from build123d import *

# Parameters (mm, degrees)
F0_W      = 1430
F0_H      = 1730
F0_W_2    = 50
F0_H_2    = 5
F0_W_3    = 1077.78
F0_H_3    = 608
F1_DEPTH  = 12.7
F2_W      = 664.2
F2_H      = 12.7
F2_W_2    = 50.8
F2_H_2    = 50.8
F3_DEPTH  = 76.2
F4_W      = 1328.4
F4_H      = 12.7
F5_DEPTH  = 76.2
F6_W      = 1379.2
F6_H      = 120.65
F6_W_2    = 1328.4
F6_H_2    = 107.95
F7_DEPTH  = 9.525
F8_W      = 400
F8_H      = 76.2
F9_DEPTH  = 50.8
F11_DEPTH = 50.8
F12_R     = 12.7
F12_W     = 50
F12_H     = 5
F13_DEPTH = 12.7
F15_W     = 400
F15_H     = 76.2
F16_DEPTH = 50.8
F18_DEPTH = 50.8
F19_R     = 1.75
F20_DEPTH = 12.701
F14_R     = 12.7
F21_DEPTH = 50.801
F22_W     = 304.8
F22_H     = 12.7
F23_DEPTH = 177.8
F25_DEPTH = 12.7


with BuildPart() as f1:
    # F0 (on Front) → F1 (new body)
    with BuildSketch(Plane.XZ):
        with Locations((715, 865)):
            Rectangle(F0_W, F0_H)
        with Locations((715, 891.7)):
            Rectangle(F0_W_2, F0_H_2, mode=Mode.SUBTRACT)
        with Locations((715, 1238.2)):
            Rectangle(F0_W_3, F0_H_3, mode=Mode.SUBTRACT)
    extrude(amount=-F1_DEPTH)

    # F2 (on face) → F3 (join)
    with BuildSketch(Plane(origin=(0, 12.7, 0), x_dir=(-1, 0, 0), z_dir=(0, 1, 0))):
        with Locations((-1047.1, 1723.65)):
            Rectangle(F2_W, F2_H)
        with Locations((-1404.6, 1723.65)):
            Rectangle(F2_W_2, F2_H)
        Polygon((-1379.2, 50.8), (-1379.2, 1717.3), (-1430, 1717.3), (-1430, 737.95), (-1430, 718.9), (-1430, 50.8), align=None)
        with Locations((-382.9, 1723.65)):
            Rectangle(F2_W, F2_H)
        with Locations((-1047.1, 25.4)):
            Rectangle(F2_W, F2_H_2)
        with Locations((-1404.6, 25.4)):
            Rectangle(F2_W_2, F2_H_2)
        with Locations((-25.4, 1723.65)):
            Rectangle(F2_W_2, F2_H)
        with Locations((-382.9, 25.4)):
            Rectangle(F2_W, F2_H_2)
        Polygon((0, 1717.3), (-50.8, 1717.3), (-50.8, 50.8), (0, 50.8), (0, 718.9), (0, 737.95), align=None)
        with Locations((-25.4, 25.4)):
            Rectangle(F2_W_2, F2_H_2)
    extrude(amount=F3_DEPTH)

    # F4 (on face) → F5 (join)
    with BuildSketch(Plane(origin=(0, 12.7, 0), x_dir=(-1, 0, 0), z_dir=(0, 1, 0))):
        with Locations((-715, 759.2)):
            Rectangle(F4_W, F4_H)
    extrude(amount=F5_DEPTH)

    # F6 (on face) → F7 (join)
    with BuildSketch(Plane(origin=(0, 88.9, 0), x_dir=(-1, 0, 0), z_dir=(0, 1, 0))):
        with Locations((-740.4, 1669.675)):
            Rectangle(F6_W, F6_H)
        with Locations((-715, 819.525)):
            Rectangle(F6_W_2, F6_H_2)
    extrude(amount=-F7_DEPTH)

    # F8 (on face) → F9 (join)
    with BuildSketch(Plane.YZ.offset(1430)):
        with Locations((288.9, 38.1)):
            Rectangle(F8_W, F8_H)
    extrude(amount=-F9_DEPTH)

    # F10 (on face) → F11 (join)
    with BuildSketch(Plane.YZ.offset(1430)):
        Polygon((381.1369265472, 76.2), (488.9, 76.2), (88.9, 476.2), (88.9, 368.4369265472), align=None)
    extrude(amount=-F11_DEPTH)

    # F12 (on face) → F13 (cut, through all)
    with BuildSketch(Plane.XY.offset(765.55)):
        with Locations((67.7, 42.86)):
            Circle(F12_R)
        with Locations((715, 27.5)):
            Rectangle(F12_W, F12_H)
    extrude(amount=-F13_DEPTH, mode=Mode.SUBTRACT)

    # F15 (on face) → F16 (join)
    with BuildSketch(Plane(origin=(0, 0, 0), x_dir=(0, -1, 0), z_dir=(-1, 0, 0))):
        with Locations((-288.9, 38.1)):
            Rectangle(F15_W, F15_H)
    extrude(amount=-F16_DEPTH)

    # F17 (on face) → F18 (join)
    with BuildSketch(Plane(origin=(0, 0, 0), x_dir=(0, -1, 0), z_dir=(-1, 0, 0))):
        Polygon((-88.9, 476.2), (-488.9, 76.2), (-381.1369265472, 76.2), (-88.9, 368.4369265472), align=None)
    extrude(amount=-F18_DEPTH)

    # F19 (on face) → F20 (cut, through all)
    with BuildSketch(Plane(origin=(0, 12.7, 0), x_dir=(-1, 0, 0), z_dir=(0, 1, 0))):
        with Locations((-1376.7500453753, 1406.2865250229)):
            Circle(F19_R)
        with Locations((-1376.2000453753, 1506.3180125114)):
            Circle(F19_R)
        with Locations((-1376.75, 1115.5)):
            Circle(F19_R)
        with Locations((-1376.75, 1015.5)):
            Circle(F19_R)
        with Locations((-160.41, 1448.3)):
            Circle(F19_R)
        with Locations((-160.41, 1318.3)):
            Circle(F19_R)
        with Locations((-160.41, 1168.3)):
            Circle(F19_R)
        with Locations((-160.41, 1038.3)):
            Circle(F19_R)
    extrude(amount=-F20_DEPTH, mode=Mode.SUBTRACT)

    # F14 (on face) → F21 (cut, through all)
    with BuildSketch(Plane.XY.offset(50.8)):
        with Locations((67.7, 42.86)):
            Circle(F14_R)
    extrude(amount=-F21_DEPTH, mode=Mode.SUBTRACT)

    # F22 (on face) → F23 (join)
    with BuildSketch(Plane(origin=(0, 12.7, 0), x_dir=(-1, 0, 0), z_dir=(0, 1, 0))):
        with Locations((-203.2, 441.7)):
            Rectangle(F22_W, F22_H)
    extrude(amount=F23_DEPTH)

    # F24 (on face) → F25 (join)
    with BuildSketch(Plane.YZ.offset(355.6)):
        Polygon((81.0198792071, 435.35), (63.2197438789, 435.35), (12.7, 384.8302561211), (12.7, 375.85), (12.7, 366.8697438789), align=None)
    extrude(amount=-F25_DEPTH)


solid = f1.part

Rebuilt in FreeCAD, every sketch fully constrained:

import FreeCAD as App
import Part
import Sketcher
from FreeCAD import Vector
Q = App.Units.Quantity


def add_polygon(sketch, points):
    """Adds a closed chain of lines whose ends are joined by coincident constraints."""
    first, n = sketch.GeometryCount, len(points)
    for a, b in zip(points, points[1:] + points[:1]):
        sketch.addGeometry(Part.LineSegment(App.Vector(*a, 0), App.Vector(*b, 0)), False)
    for i in range(n):
        sketch.addConstraint(Sketcher.Constraint("Coincident", first + i, 2, first + (i + 1) % n, 1))

doc = App.newDocument("Part")
body = doc.addObject("PartDesign::Body", "Body")

# Sketch on XZ plane
sketch1 = doc.addObject("Sketcher::SketchObject", "Sketch")
body.addObject(sketch1)
sketch1.AttachmentSupport = (doc.XZ_Plane, [""])
sketch1.MapMode = "FlatFace"
add_polygon(sketch1, [(0, 1730), (0, 0), (1430, 0), (1430, 1730)])  # lines 0-3
add_polygon(sketch1, [(740, 889), (690, 889), (690, 894), (740, 894)])  # lines 4-7
add_polygon(sketch1, [(1254, 934), (176, 934), (176, 1542), (1254, 1542)])  # lines 8-11
sketch1.addConstraint(Sketcher.Constraint("Vertical", 0))
sketch1.addConstraint(Sketcher.Constraint("Horizontal", 1))
sketch1.addConstraint(Sketcher.Constraint("Vertical", 2))
sketch1.addConstraint(Sketcher.Constraint("Horizontal", 3))
sketch1.addConstraint(Sketcher.Constraint("Horizontal", 4))
sketch1.addConstraint(Sketcher.Constraint("Vertical", 5))
sketch1.addConstraint(Sketcher.Constraint("Horizontal", 6))
sketch1.addConstraint(Sketcher.Constraint("Vertical", 7))
sketch1.addConstraint(Sketcher.Constraint("Horizontal", 8))
sketch1.addConstraint(Sketcher.Constraint("Vertical", 9))
sketch1.addConstraint(Sketcher.Constraint("Horizontal", 10))
sketch1.addConstraint(Sketcher.Constraint("Vertical", 11))
sketch1.addConstraint(Sketcher.Constraint("Coincident", 0, 2, -1, 1))
sketch1.addConstraint(Sketcher.Constraint("DistanceX", 1, 1, 1, 2, Q("1430 mm")))
sketch1.addConstraint(Sketcher.Constraint("DistanceX", 4, 2, 4, 1, Q("50 mm")))
sketch1.addConstraint(Sketcher.Constraint("DistanceY", 0, 2, 0, 1, Q("1730 mm")))
sketch1.addConstraint(Sketcher.Constraint("DistanceY", 5, 1, 5, 2, Q("5 mm")))
sketch1.addConstraint(Sketcher.Constraint("DistanceY", 9, 1, 9, 2, Q("608 mm")))
sketch1.addConstraint(Sketcher.Constraint("DistanceX", -1, 1, 4, 2, Q("690 mm")))
sketch1.addConstraint(Sketcher.Constraint("DistanceY", 5, 2, 8, 2, Q("40 mm")))
sketch1.addConstraint(Sketcher.Constraint("DistanceX", 8, 2, 8, 1, Q("1077.78 mm")))
sketch1.addConstraint(Sketcher.Constraint("DistanceY", -1, 1, 4, 2, Q("889.2 mm")))
sketch1.addConstraint(Sketcher.Constraint("DistanceX", -1, 1, 8, 2, Q("176.11 mm")))
pad1 = doc.addObject("PartDesign::Pad", "Pad")
body.addObject(pad1)
pad1.Profile = sketch1
pad1.Length = 12.7
pad1.Reversed = True

# Sketch on XZ plane
sketch2 = doc.addObject("Sketcher::SketchObject", "Sketch001")
body.addObject(sketch2)
sketch2.AttachmentSupport = (doc.XZ_Plane, [""])
sketch2.MapMode = "FlatFace"
sketch2.AttachmentOffset = App.Placement(Vector(0, 0, -12.7), App.Rotation())
add_polygon(sketch2, [(1430, 0), (0, 0), (0, 1730), (1430, 1730)])  # lines 0-3
add_polygon(sketch2, [(51, 1717), (51, 51), (1379, 51), (1379, 1717)])  # lines 4-7
sketch2.addConstraint(Sketcher.Constraint("Horizontal", 0))
sketch2.addConstraint(Sketcher.Constraint("Vertical", 1))
sketch2.addConstraint(Sketcher.Constraint("Horizontal", 2))
sketch2.addConstraint(Sketcher.Constraint("Vertical", 3))
sketch2.addConstraint(Sketcher.Constraint("Vertical", 4))
sketch2.addConstraint(Sketcher.Constraint("Horizontal", 5))
sketch2.addConstraint(Sketcher.Constraint("Vertical", 6))
sketch2.addConstraint(Sketcher.Constraint("Horizontal", 7))
sketch2.addConstraint(Sketcher.Constraint("Coincident", 0, 2, -1, 1))
sketch2.addConstraint(Sketcher.Constraint("DistanceX", 0, 2, 0, 1, Q("1430 mm")))
sketch2.addConstraint(Sketcher.Constraint("DistanceY", 1, 1, 1, 2, Q("1730 mm")))
sketch2.addConstraint(Sketcher.Constraint("DistanceX", 5, 1, 5, 2, Q("1328.4 mm")))
sketch2.addConstraint(Sketcher.Constraint("DistanceY", 4, 2, 4, 1, Q("1666.5 mm")))
sketch2.addConstraint(Sketcher.Constraint("DistanceX", -1, 1, 4, 2, Q("50.8 mm")))
sketch2.addConstraint(Sketcher.Constraint("DistanceY", -1, 1, 4, 2, Q("50.8 mm")))
pad2 = doc.addObject("PartDesign::Pad", "Pad001")
body.addObject(pad2)
pad2.Profile = sketch2
pad2.Length = 76.2
pad2.Reversed = True

# Sketch on XZ plane
sketch3 = doc.addObject("Sketcher::SketchObject", "Sketch002")
body.addObject(sketch3)
sketch3.AttachmentSupport = (doc.XZ_Plane, [""])
sketch3.MapMode = "FlatFace"
sketch3.AttachmentOffset = App.Placement(Vector(0, 0, -12.7), App.Rotation())
add_polygon(sketch3, [(1379, 766), (1379, 753), (51, 753), (51, 766)])  # lines 0-3
sketch3.addConstraint(Sketcher.Constraint("Vertical", 0))
sketch3.addConstraint(Sketcher.Constraint("Horizontal", 1))
sketch3.addConstraint(Sketcher.Constraint("Vertical", 2))
sketch3.addConstraint(Sketcher.Constraint("Horizontal", 3))
sketch3.addConstraint(Sketcher.Constraint("DistanceX", 1, 2, 1, 1, Q("1328.4 mm")))
sketch3.addConstraint(Sketcher.Constraint("DistanceY", 0, 2, 0, 1, Q("12.7 mm")))
sketch3.addConstraint(Sketcher.Constraint("DistanceX", -1, 1, 0, 2, Q("1379.2 mm")))
sketch3.addConstraint(Sketcher.Constraint("DistanceY", -1, 1, 0, 2, Q("752.85 mm")))
pad3 = doc.addObject("PartDesign::Pad", "Pad002")
body.addObject(pad3)
pad3.Profile = sketch3
pad3.Length = 76.2
pad3.Reversed = True

# Sketch on XZ plane
sketch4 = doc.addObject("Sketcher::SketchObject", "Sketch003")
body.addObject(sketch4)
sketch4.AttachmentSupport = (doc.XZ_Plane, [""])
sketch4.MapMode = "FlatFace"
sketch4.AttachmentOffset = App.Placement(Vector(0, 0, -88.9), App.Rotation())
add_polygon(sketch4, [(1430, 1730), (1430, 1609), (51, 1609), (51, 1730)])  # lines 0-3
add_polygon(sketch4, [(1379, 874), (1379, 766), (51, 766), (51, 874)])  # lines 4-7
sketch4.addConstraint(Sketcher.Constraint("Vertical", 0))
sketch4.addConstraint(Sketcher.Constraint("Horizontal", 1))
sketch4.addConstraint(Sketcher.Constraint("Vertical", 2))
sketch4.addConstraint(Sketcher.Constraint("Horizontal", 3))
sketch4.addConstraint(Sketcher.Constraint("Vertical", 4))
sketch4.addConstraint(Sketcher.Constraint("Horizontal", 5))
sketch4.addConstraint(Sketcher.Constraint("Vertical", 6))
sketch4.addConstraint(Sketcher.Constraint("Horizontal", 7))
sketch4.addConstraint(Sketcher.Constraint("Vertical", 2, 2, 5, 2))
sketch4.addConstraint(Sketcher.Constraint("DistanceX", 1, 2, 1, 1, Q("1379.2 mm")))
sketch4.addConstraint(Sketcher.Constraint("DistanceX", 5, 2, 5, 1, Q("1328.4 mm")))
sketch4.addConstraint(Sketcher.Constraint("DistanceX", -1, 1, 0, 2, Q("1430 mm")))
sketch4.addConstraint(Sketcher.Constraint("DistanceY", -1, 1, 2, 2, Q("1730 mm")))
sketch4.addConstraint(Sketcher.Constraint("DistanceY", 0, 2, 0, 1, Q("120.65 mm")))
sketch4.addConstraint(Sketcher.Constraint("DistanceY", 4, 2, 4, 1, Q("107.95 mm")))
sketch4.addConstraint(Sketcher.Constraint("DistanceY", -1, 1, 6, 2, Q("873.5 mm")))
pad4 = doc.addObject("PartDesign::Pad", "Pad003")
body.addObject(pad4)
pad4.Profile = sketch4
pad4.Length = 9.525

# Sketch on YZ plane
sketch5 = doc.addObject("Sketcher::SketchObject", "Sketch004")
body.addObject(sketch5)
sketch5.AttachmentSupport = (doc.YZ_Plane, [""])
sketch5.MapMode = "FlatFace"
sketch5.AttachmentOffset = App.Placement(Vector(0, 0, 1430), App.Rotation())
add_polygon(sketch5, [(89, 76), (89, 0), (489, 0), (489, 76)])  # lines 0-3
sketch5.addConstraint(Sketcher.Constraint("Vertical", 0))
sketch5.addConstraint(Sketcher.Constraint("Horizontal", 1))
sketch5.addConstraint(Sketcher.Constraint("Vertical", 2))
sketch5.addConstraint(Sketcher.Constraint("Horizontal", 3))
sketch5.addConstraint(Sketcher.Constraint("PointOnObject", 0, 2, -1))
sketch5.addConstraint(Sketcher.Constraint("DistanceX", 1, 1, 1, 2, Q("400 mm")))
sketch5.addConstraint(Sketcher.Constraint("DistanceY", 0, 2, 0, 1, Q("76.2 mm")))
sketch5.addConstraint(Sketcher.Constraint("DistanceX", -1, 1, 0, 2, Q("88.9 mm")))
pad5 = doc.addObject("PartDesign::Pad", "Pad004")
body.addObject(pad5)
pad5.Profile = sketch5
pad5.Length = 50.8
pad5.Reversed = True

# Sketch on YZ plane
sketch6 = doc.addObject("Sketcher::SketchObject", "Sketch005")
body.addObject(sketch6)
sketch6.AttachmentSupport = (doc.YZ_Plane, [""])
sketch6.MapMode = "FlatFace"
sketch6.AttachmentOffset = App.Placement(Vector(0, 0, 1430), App.Rotation())
add_polygon(sketch6, [(381, 76), (489, 76), (89, 476), (89, 368)])  # lines 0-3
sketch6.addConstraint(Sketcher.Constraint("Horizontal", 0))
sketch6.addConstraint(Sketcher.Constraint("Vertical", 2))
sketch6.addConstraint(Sketcher.Constraint("Parallel", 1, 3))
sketch6.addConstraint(Sketcher.Constraint("Equal", 0, 2))
sketch6.addConstraint(Sketcher.Constraint("DistanceX", 1, 2, 0, 2, Q("400 mm")))
sketch6.addConstraint(Sketcher.Constraint("DistanceX", -1, 1, 0, 2, Q("488.9 mm")))
sketch6.addConstraint(Sketcher.Constraint("DistanceY", -1, 1, 0, 2, Q("76.2 mm")))
sketch6.addConstraint(Sketcher.Constraint("DistanceX", 0, 1, 0, 2, Q("107.763073 mm")))
pad6 = doc.addObject("PartDesign::Pad", "Pad005")
body.addObject(pad6)
pad6.Profile = sketch6
pad6.Length = 50.8
pad6.Reversed = True

# Sketch on XY plane
sketch7 = doc.addObject("Sketcher::SketchObject", "Sketch006")
body.addObject(sketch7)
sketch7.AttachmentSupport = (doc.XY_Plane, [""])
sketch7.MapMode = "FlatFace"
sketch7.AttachmentOffset = App.Placement(Vector(0, 0, 765.55), App.Rotation())
sketch7.addGeometry(Part.Circle(Vector(68, 43, 0), Vector(0, 0, 1), 13), False)  # 0
add_polygon(sketch7, [(690, 30), (690, 25), (740, 25), (740, 30)])  # lines 1-4
sketch7.addConstraint(Sketcher.Constraint("Vertical", 1))
sketch7.addConstraint(Sketcher.Constraint("Horizontal", 2))
sketch7.addConstraint(Sketcher.Constraint("Vertical", 3))
sketch7.addConstraint(Sketcher.Constraint("Horizontal", 4))
sketch7.addConstraint(Sketcher.Constraint("Diameter", 0, Q("25.4 mm")))
sketch7.addConstraint(Sketcher.Constraint("DistanceX", 2, 1, 2, 2, Q("50 mm")))
sketch7.addConstraint(Sketcher.Constraint("DistanceY", 1, 2, 1, 1, Q("5 mm")))
sketch7.addConstraint(Sketcher.Constraint("DistanceX", -1, 1, 1, 2, Q("690 mm")))
sketch7.addConstraint(Sketcher.Constraint("DistanceY", -1, 1, 1, 2, Q("25 mm")))
sketch7.addConstraint(Sketcher.Constraint("DistanceX", -1, 1, 0, 3, Q("67.7 mm")))
sketch7.addConstraint(Sketcher.Constraint("DistanceY", -1, 1, 0, 3, Q("42.86 mm")))
pocket1 = doc.addObject("PartDesign::Pocket", "Pocket")
body.addObject(pocket1)
pocket1.Profile = sketch7
pocket1.Length = 12.7

# Sketch on YZ plane
sketch8 = doc.addObject("Sketcher::SketchObject", "Sketch007")
body.addObject(sketch8)
sketch8.AttachmentSupport = (doc.YZ_Plane, [""])
sketch8.MapMode = "FlatFace"
add_polygon(sketch8, [(489, 76), (489, 0), (89, 0), (89, 76)])  # lines 0-3
sketch8.addConstraint(Sketcher.Constraint("Vertical", 0))
sketch8.addConstraint(Sketcher.Constraint("Horizontal", 1))
sketch8.addConstraint(Sketcher.Constraint("Vertical", 2))
sketch8.addConstraint(Sketcher.Constraint("Horizontal", 3))
sketch8.addConstraint(Sketcher.Constraint("PointOnObject", 0, 2, -1))
sketch8.addConstraint(Sketcher.Constraint("DistanceX", 1, 2, 1, 1, Q("400 mm")))
sketch8.addConstraint(Sketcher.Constraint("DistanceY", 0, 2, 0, 1, Q("76.2 mm")))
sketch8.addConstraint(Sketcher.Constraint("DistanceX", -1, 1, 0, 2, Q("488.9 mm")))
pad7 = doc.addObject("PartDesign::Pad", "Pad006")
body.addObject(pad7)
pad7.Profile = sketch8
pad7.Length = 50.8

# Sketch on YZ plane
sketch9 = doc.addObject("Sketcher::SketchObject", "Sketch008")
body.addObject(sketch9)
sketch9.AttachmentSupport = (doc.YZ_Plane, [""])
sketch9.MapMode = "FlatFace"
add_polygon(sketch9, [(89, 476), (489, 76), (381, 76), (89, 368)])  # lines 0-3
sketch9.addConstraint(Sketcher.Constraint("Horizontal", 1))
sketch9.addConstraint(Sketcher.Constraint("Vertical", 3))
sketch9.addConstraint(Sketcher.Constraint("Parallel", 0, 2))
sketch9.addConstraint(Sketcher.Constraint("Equal", 1, 3))
sketch9.addConstraint(Sketcher.Constraint("DistanceX", 2, 2, 0, 2, Q("400 mm")))
sketch9.addConstraint(Sketcher.Constraint("DistanceX", -1, 1, 0, 2, Q("488.9 mm")))
sketch9.addConstraint(Sketcher.Constraint("DistanceY", -1, 1, 0, 2, Q("76.2 mm")))
sketch9.addConstraint(Sketcher.Constraint("DistanceX", 1, 2, 1, 1, Q("107.763073 mm")))
pad8 = doc.addObject("PartDesign::Pad", "Pad007")
body.addObject(pad8)
pad8.Profile = sketch9
pad8.Length = 50.8

# Sketch on XZ plane
sketch10 = doc.addObject("Sketcher::SketchObject", "Sketch009")
body.addObject(sketch10)
sketch10.AttachmentSupport = (doc.XZ_Plane, [""])
sketch10.MapMode = "FlatFace"
sketch10.AttachmentOffset = App.Placement(Vector(0, 0, -12.7), App.Rotation())
sketch10.addGeometry(Part.Circle(Vector(1376.8, 1406.3, 0), Vector(0, 0, 1), 1.8), False)
sketch10.addGeometry(Part.Circle(Vector(1376.2, 1506.3, 0), Vector(0, 0, 1), 1.8), False)
sketch10.addGeometry(Part.Circle(Vector(1376.8, 1115.5, 0), Vector(0, 0, 1), 1.8), False)
sketch10.addGeometry(Part.Circle(Vector(1376.8, 1015.5, 0), Vector(0, 0, 1), 1.8), False)
sketch10.addGeometry(Part.Circle(Vector(160.4, 1448.3, 0), Vector(0, 0, 1), 1.8), False)
sketch10.addGeometry(Part.Circle(Vector(160.4, 1318.3, 0), Vector(0, 0, 1), 1.8), False)
sketch10.addGeometry(Part.Circle(Vector(160.4, 1168.3, 0), Vector(0, 0, 1), 1.8), False)
sketch10.addGeometry(Part.Circle(Vector(160.4, 1038.3, 0), Vector(0, 0, 1), 1.8), False)
sketch10.addConstraint(Sketcher.Constraint("Equal", 0, 1))
sketch10.addConstraint(Sketcher.Constraint("Equal", 1, 2))
sketch10.addConstraint(Sketcher.Constraint("Equal", 2, 3))
sketch10.addConstraint(Sketcher.Constraint("Equal", 3, 4))
sketch10.addConstraint(Sketcher.Constraint("Equal", 4, 5))
sketch10.addConstraint(Sketcher.Constraint("Equal", 5, 6))
sketch10.addConstraint(Sketcher.Constraint("Equal", 6, 7))
sketch10.addConstraint(Sketcher.Constraint("Vertical", 2, 3, 3, 3))
sketch10.addConstraint(Sketcher.Constraint("Vertical", 4, 3, 5, 3))
sketch10.addConstraint(Sketcher.Constraint("Vertical", 5, 3, 6, 3))
sketch10.addConstraint(Sketcher.Constraint("Vertical", 6, 3, 7, 3))
sketch10.addConstraint(Sketcher.Constraint("Diameter", 0, Q("3.5 mm")))
sketch10.addConstraint(Sketcher.Constraint("DistanceY", 3, 3, 2, 3, Q("100 mm")))
sketch10.addConstraint(Sketcher.Constraint("DistanceY", 5, 3, 4, 3, Q("130 mm")))
sketch10.addConstraint(Sketcher.Constraint("DistanceY", 6, 3, 5, 3, Q("150 mm")))
sketch10.addConstraint(Sketcher.Constraint("DistanceY", 7, 3, 6, 3, Q("130 mm")))
sketch10.addConstraint(Sketcher.Constraint("DistanceY", -1, 1, 2, 3, Q("1115.5 mm")))
sketch10.addConstraint(Sketcher.Constraint("DistanceY", -1, 1, 4, 3, Q("1448.3 mm")))
sketch10.addConstraint(Sketcher.Constraint("DistanceX", -1, 1, 2, 3, Q("1376.75 mm")))
sketch10.addConstraint(Sketcher.Constraint("DistanceX", -1, 1, 4, 3, Q("160.41 mm")))
sketch10.addConstraint(Sketcher.Constraint("DistanceX", 1, 3, 0, 3, Q("0.55 mm")))
sketch10.addConstraint(Sketcher.Constraint("DistanceX", -1, 1, 0, 3, Q("1376.750045 mm")))
sketch10.addConstraint(Sketcher.Constraint("DistanceY", -1, 1, 0, 3, Q("1406.286525 mm")))
sketch10.addConstraint(Sketcher.Constraint("DistanceY", -1, 1, 1, 3, Q("1506.318013 mm")))
pocket2 = doc.addObject("PartDesign::Pocket", "Pocket001")
body.addObject(pocket2)
pocket2.Profile = sketch10
pocket2.Type = "ThroughAll"
pocket2.Reversed = True

# Sketch on XY plane
sketch11 = doc.addObject("Sketcher::SketchObject", "Sketch010")
body.addObject(sketch11)
sketch11.AttachmentSupport = (doc.XY_Plane, [""])
sketch11.MapMode = "FlatFace"
sketch11.AttachmentOffset = App.Placement(Vector(0, 0, 50.8), App.Rotation())
sketch11.addGeometry(Part.Circle(Vector(68, 43, 0), Vector(0, 0, 1), 13), False)
sketch11.addConstraint(Sketcher.Constraint("Diameter", 0, Q("25.4 mm")))
sketch11.addConstraint(Sketcher.Constraint("DistanceX", -1, 1, 0, 3, Q("67.7 mm")))
sketch11.addConstraint(Sketcher.Constraint("DistanceY", -1, 1, 0, 3, Q("42.86 mm")))
pocket3 = doc.addObject("PartDesign::Pocket", "Pocket002")
body.addObject(pocket3)
pocket3.Profile = sketch11
pocket3.Type = "ThroughAll"

# Sketch on XZ plane
sketch12 = doc.addObject("Sketcher::SketchObject", "Sketch011")
body.addObject(sketch12)
sketch12.AttachmentSupport = (doc.XZ_Plane, [""])
sketch12.MapMode = "FlatFace"
sketch12.AttachmentOffset = App.Placement(Vector(0, 0, -12.7), App.Rotation())
add_polygon(sketch12, [(356, 448), (356, 435), (51, 435), (51, 448)])  # lines 0-3
sketch12.addConstraint(Sketcher.Constraint("Vertical", 0))
sketch12.addConstraint(Sketcher.Constraint("Horizontal", 1))
sketch12.addConstraint(Sketcher.Constraint("Vertical", 2))
sketch12.addConstraint(Sketcher.Constraint("Horizontal", 3))
sketch12.addConstraint(Sketcher.Constraint("DistanceX", 1, 2, 1, 1, Q("304.8 mm")))
sketch12.addConstraint(Sketcher.Constraint("DistanceY", 0, 2, 0, 1, Q("12.7 mm")))
sketch12.addConstraint(Sketcher.Constraint("DistanceX", -1, 1, 0, 2, Q("355.6 mm")))
sketch12.addConstraint(Sketcher.Constraint("DistanceY", -1, 1, 0, 2, Q("435.35 mm")))
pad9 = doc.addObject("PartDesign::Pad", "Pad008")
body.addObject(pad9)
pad9.Profile = sketch12
pad9.Length = 177.8
pad9.Reversed = True

# Sketch on YZ plane
sketch13 = doc.addObject("Sketcher::SketchObject", "Sketch012")
body.addObject(sketch13)
sketch13.AttachmentSupport = (doc.YZ_Plane, [""])
sketch13.MapMode = "FlatFace"
sketch13.AttachmentOffset = App.Placement(Vector(0, 0, 355.6), App.Rotation())
add_polygon(sketch13, [(81, 435), (63, 435), (13, 385), (13, 367)])  # lines 0-3
sketch13.addConstraint(Sketcher.Constraint("Horizontal", 0))
sketch13.addConstraint(Sketcher.Constraint("Vertical", 2))
sketch13.addConstraint(Sketcher.Constraint("Angle", 1, Q("-135 deg")))
sketch13.addConstraint(Sketcher.Constraint("DistanceX", -1, 1, 1, 2, Q("12.7 mm")))
sketch13.addConstraint(Sketcher.Constraint("DistanceY", -1, 1, 0, 2, Q("435.35 mm")))
sketch13.addConstraint(Sketcher.Constraint("Distance", 3, Q("96.73237 mm")))
sketch13.addConstraint(Sketcher.Constraint("DistanceX", 0, 2, 0, 1, Q("17.800135 mm")))
sketch13.addConstraint(Sketcher.Constraint("DistanceY", 2, 2, 2, 1, Q("17.960512 mm")))
pad10 = doc.addObject("PartDesign::Pad", "Pad009")
body.addObject(pad10)
pad10.Profile = sketch13
pad10.Length = 12.7
pad10.Reversed = True

doc.recompute()
